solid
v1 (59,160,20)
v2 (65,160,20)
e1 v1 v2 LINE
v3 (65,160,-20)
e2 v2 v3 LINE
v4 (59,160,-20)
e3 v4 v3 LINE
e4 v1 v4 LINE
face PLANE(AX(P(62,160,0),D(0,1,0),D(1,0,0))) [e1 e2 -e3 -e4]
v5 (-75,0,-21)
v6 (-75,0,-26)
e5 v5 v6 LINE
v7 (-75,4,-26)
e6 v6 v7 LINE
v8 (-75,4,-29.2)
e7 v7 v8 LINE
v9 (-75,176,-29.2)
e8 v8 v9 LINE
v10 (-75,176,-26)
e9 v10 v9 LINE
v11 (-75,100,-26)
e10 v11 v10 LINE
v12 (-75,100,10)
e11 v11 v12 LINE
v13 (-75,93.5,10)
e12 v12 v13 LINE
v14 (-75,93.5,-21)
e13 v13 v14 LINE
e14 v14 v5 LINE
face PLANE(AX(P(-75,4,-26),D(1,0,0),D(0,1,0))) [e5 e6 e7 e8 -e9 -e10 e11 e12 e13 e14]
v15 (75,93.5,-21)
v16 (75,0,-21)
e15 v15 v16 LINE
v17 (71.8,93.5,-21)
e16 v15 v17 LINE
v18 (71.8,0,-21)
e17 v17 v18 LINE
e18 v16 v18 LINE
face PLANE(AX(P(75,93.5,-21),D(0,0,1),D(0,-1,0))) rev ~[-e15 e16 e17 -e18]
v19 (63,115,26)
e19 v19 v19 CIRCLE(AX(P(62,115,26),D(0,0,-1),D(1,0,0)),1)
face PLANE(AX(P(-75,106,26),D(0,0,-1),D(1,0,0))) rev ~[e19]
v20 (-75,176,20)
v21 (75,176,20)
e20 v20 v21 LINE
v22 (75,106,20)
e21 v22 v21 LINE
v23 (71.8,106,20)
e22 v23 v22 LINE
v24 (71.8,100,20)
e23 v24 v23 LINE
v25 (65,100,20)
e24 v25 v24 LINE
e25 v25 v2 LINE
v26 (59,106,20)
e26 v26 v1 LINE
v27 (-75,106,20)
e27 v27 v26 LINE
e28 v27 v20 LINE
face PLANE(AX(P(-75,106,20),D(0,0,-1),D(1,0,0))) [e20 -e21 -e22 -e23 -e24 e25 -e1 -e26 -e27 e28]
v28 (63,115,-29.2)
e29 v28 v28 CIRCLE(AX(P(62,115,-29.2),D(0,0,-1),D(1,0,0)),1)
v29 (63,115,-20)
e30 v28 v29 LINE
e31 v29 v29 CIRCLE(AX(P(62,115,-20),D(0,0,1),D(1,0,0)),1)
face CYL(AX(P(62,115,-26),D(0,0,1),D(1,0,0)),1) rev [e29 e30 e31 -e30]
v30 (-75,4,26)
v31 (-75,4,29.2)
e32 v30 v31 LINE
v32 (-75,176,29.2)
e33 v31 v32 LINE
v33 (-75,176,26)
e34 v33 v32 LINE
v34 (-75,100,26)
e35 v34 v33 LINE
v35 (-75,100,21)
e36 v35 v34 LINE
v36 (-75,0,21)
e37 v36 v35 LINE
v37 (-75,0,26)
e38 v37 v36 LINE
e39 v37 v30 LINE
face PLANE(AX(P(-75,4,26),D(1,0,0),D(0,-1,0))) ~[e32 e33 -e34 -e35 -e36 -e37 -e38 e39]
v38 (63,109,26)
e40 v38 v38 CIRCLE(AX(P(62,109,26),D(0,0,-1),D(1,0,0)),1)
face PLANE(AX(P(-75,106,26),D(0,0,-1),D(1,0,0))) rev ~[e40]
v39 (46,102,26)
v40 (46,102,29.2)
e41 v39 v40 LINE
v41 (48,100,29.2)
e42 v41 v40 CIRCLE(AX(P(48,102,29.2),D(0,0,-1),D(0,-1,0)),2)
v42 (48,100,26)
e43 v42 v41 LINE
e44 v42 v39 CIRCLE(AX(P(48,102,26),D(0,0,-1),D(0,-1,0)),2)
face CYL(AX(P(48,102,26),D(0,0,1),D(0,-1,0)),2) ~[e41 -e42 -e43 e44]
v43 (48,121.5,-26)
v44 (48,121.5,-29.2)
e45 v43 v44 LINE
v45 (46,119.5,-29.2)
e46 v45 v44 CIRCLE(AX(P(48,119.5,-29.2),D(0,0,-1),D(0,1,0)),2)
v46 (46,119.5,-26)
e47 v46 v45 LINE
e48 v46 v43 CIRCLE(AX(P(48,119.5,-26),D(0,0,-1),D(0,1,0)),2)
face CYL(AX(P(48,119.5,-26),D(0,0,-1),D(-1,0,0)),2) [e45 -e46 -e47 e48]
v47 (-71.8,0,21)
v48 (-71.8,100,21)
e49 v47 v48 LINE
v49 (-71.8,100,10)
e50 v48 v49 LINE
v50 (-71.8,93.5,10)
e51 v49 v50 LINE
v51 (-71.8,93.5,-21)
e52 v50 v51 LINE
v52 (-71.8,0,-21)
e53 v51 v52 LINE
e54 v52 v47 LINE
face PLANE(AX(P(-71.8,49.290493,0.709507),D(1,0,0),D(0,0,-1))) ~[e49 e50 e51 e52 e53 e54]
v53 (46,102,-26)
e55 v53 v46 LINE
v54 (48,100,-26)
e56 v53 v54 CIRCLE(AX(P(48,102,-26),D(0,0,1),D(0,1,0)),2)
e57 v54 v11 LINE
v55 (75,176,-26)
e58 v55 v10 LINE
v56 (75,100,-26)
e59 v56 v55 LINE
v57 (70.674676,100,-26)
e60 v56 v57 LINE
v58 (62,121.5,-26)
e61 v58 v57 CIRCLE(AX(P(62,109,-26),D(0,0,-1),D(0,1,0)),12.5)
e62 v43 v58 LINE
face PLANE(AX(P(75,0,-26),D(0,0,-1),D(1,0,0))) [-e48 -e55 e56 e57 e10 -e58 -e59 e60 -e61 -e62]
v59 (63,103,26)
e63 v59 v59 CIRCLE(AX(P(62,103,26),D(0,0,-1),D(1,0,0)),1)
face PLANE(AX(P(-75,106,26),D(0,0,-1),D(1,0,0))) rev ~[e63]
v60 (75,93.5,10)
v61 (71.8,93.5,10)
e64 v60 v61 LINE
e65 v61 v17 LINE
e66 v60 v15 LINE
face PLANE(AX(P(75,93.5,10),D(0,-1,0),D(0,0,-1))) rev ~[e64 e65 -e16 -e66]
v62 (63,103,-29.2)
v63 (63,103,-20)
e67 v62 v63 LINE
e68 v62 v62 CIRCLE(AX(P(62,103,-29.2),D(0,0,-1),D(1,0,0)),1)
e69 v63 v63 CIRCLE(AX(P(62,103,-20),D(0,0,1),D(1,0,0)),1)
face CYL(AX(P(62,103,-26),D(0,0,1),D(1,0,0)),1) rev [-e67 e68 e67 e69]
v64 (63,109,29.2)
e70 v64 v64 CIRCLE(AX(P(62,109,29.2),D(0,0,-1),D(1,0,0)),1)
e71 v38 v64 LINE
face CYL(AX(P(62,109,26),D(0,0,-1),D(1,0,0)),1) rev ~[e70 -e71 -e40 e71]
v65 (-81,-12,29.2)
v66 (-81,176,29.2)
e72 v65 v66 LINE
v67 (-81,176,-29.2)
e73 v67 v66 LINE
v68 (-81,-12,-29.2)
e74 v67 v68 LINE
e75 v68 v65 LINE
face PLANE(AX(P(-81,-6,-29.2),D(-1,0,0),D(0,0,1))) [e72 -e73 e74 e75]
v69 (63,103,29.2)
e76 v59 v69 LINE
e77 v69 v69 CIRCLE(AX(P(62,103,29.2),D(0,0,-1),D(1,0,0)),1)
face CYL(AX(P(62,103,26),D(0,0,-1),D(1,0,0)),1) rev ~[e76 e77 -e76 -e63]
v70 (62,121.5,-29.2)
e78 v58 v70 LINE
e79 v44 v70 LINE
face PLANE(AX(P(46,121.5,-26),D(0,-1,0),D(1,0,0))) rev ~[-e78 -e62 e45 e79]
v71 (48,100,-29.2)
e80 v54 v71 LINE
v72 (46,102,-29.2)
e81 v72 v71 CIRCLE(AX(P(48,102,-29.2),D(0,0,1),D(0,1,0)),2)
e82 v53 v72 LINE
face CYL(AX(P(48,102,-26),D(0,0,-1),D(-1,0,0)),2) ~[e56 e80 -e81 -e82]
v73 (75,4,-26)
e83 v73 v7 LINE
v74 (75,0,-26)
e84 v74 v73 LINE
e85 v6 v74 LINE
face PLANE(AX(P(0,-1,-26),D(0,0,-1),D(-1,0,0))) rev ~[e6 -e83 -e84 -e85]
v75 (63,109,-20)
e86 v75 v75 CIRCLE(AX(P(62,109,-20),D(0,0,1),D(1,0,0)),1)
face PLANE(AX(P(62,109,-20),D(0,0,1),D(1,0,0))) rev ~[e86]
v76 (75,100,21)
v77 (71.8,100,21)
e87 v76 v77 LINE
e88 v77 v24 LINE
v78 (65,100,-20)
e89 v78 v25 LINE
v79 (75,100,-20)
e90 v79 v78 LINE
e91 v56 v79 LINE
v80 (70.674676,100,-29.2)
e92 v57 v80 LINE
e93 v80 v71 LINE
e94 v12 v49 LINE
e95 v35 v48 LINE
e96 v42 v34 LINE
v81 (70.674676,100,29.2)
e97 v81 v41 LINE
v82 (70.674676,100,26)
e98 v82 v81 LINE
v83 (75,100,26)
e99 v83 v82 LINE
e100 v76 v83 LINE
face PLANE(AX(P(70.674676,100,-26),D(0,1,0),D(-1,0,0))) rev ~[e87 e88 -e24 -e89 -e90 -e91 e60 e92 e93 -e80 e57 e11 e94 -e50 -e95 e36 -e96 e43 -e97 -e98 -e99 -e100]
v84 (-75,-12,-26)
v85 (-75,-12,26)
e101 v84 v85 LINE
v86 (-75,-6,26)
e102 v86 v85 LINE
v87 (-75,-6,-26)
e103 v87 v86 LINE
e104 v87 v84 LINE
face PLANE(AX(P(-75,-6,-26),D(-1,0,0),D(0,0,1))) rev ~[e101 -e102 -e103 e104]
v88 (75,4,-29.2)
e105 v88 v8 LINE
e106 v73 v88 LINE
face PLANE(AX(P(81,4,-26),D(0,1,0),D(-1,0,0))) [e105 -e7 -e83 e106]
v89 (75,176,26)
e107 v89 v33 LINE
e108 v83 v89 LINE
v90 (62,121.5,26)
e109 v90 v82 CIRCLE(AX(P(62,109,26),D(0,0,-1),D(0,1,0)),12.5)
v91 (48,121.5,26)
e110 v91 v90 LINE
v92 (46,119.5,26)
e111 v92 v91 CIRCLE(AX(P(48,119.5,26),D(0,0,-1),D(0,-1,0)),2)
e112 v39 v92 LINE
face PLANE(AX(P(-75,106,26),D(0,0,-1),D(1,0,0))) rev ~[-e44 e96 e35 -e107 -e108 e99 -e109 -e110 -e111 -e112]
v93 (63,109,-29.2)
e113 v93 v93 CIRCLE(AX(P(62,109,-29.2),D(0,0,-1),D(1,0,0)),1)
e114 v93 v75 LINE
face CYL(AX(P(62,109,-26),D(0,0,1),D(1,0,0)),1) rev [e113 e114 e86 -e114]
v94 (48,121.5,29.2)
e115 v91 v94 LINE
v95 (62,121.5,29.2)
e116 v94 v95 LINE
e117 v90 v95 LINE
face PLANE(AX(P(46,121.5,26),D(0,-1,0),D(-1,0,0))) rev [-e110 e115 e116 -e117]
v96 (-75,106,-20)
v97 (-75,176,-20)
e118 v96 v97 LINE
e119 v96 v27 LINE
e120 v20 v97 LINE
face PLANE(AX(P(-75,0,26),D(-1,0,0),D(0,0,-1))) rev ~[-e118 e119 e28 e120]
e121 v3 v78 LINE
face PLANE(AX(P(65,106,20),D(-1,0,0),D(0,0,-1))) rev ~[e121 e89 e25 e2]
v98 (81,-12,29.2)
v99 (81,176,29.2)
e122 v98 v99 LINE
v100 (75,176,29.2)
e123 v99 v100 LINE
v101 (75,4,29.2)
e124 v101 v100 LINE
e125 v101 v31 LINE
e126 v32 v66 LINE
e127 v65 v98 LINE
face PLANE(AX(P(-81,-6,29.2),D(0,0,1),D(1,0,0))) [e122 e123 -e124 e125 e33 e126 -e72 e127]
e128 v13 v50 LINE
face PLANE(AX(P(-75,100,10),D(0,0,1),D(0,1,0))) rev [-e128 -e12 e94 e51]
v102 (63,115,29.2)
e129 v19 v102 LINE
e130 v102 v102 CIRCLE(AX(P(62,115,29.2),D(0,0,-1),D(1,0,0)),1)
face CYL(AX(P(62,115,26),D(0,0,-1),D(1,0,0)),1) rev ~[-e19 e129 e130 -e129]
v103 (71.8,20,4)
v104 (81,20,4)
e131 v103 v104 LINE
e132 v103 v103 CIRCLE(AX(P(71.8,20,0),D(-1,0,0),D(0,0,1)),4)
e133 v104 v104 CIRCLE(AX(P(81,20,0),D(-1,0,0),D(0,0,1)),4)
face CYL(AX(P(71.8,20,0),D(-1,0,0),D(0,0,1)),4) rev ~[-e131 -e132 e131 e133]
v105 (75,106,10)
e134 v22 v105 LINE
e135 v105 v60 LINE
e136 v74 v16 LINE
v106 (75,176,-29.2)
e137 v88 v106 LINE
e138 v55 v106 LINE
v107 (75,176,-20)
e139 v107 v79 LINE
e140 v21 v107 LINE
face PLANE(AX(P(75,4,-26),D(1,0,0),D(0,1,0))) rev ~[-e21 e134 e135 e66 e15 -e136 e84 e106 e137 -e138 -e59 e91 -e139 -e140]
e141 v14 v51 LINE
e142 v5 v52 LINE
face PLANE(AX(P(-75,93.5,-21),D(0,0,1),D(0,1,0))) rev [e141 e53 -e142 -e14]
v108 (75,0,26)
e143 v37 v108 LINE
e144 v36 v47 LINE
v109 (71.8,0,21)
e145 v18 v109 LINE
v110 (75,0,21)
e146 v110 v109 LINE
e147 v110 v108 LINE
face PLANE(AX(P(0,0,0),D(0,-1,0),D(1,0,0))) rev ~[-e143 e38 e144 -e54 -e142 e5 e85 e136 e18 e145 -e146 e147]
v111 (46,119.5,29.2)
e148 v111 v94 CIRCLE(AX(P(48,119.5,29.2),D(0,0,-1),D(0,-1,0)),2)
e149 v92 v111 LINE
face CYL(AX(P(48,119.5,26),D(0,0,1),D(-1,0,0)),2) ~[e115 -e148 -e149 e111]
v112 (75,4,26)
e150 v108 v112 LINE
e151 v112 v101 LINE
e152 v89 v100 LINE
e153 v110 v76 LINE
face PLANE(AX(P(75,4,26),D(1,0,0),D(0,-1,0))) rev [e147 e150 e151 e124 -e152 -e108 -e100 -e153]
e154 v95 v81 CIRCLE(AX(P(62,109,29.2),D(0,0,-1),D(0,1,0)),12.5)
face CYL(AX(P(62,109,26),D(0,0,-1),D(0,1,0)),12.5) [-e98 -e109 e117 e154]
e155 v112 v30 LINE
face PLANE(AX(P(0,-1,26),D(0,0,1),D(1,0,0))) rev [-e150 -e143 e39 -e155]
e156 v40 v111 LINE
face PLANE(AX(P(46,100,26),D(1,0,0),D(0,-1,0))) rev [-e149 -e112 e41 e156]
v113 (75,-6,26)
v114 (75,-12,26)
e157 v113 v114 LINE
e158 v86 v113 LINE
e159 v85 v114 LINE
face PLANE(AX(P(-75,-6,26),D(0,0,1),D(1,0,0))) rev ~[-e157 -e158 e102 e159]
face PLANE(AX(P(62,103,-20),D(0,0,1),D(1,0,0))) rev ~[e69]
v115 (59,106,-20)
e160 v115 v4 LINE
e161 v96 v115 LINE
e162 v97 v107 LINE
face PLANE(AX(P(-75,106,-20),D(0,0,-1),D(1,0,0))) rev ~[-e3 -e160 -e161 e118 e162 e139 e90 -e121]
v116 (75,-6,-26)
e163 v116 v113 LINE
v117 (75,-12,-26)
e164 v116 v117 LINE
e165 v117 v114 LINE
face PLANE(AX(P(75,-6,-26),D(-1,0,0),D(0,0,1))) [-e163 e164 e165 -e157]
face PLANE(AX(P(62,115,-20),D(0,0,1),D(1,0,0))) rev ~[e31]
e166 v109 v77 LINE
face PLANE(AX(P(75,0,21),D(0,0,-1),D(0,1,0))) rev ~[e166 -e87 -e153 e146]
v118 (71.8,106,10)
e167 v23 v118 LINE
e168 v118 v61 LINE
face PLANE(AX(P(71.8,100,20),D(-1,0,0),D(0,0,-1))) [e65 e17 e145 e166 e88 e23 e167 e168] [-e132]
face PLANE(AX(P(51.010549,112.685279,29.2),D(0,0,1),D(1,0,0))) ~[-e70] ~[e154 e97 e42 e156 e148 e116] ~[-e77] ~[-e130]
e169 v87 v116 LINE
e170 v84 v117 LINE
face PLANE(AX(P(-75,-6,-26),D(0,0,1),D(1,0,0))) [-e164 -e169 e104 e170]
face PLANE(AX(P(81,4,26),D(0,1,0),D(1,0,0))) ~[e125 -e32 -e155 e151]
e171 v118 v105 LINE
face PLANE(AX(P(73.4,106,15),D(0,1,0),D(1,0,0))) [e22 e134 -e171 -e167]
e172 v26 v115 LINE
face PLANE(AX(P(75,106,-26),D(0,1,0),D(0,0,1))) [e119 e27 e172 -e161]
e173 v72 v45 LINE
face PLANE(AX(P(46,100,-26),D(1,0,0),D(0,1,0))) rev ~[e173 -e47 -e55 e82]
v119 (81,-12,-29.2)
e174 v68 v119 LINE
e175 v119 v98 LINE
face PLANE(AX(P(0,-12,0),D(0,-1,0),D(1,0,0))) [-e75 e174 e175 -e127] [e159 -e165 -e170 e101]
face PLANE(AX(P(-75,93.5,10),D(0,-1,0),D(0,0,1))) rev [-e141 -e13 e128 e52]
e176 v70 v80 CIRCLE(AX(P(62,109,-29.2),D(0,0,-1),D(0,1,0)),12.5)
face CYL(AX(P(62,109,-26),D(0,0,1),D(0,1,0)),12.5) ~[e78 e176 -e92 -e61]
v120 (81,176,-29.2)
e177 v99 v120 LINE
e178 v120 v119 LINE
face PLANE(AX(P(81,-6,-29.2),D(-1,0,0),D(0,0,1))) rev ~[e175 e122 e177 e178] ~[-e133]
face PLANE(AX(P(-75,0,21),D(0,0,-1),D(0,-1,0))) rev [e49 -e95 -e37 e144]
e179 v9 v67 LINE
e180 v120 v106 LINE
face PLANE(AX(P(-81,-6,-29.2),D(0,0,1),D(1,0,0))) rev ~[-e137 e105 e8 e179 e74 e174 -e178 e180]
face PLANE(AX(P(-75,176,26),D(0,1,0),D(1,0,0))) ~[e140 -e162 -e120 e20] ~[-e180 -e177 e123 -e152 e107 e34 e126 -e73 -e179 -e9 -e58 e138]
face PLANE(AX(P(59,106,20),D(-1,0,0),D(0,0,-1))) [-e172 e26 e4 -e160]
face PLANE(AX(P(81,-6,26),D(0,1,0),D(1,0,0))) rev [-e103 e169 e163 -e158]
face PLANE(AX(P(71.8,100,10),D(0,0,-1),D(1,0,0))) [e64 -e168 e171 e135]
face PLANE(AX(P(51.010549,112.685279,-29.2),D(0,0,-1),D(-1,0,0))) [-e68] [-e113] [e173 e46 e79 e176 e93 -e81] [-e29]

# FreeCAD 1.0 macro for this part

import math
import FreeCAD as App
import Part
import Sketcher


def edges_at(feature, points):
    """Names of the edges that pass closest to the given points."""
    edges = feature.Shape.Edges
    near = lambda p: min(range(len(edges)), key=lambda i: edges[i].distToShape(Part.Vertex(*p))[0])
    return sorted({f"Edge{near(p) + 1}" for p in points})


def add_polygon(sketch, points):
    """Adds a closed chain of lines whose ends are joined by coincident constraints."""
    first, n = sketch.GeometryCount, len(points)
    for a, b in zip(points, points[1:] + points[:1]):
        sketch.addGeometry(Part.LineSegment(App.Vector(*a, 0), App.Vector(*b, 0)), False)
    for i in range(n):
        sketch.addConstraint(Sketcher.Constraint("Coincident", first + i, 2, first + (i + 1) % n, 1))

doc = App.newDocument("Part")
params = doc.addObject("Spreadsheet::Sheet", "Params")
for row, (alias, value) in enumerate([
    ("sketch1_width", "150 mm"),
    ("sketch1_height", "42 mm"),
    ("pad1_length", "3.2 mm"),
    ("sketch2_width", "162 mm"),
    ("sketch2_height", "52 mm"),
    ("pad2_length", "6 mm"),
    ("sketch3_width", "6 mm"),
    ("sketch3_height", "52 mm"),
    ("pad3_length", "176 mm"),
    ("sketch4_width", "6 mm"),
    ("sketch4_height", "52 mm"),
    ("sketch5_width", "150 mm"),
    ("sketch5_height", "42 mm"),
    ("pad5_length", "3.2 mm"),
    ("sketch6_width", "150 mm"),
    ("sketch6_height", "6 mm"),
    ("pad6_length", "70 mm"),
    ("sketch7_diameter", "6 mm"),
    ("sketch7_width", "10 mm"),
    ("sketch7_height", "40 mm"),
    ("sketch8_diameter", "6 mm"),
    ("sketch9_diameter", "6 mm"),
    ("sketch10_width", "6 mm"),
    ("sketch10_height", "40 mm"),
    ("pad7_length", "54 mm"),
    ("sketch11_width", "162 mm"),
    ("sketch11_height", "10 mm"),
    ("pad8_length", "3.2 mm"),
    ("sketch12_width", "150 mm"),
    ("sketch12_height", "42 mm"),
    ("pocket4_length", "3.2 mm"),
    ("sketch13_width", "150 mm"),
    ("sketch13_width2", "10 mm"),
    ("sketch13_height", "1 mm"),
    ("sketch13_height2", "40 mm"),
    ("pocket5_length", "3.2 mm"),
    ("sketch14_width", "100 mm"),
    ("sketch14_height", "31 mm"),
    ("sketch14_height2", "42 mm"),
    ("sketch14_width2", "93.5 mm"),
    ("pad9_length", "3.2 mm"),
    ("sketch15_height", "10 mm"),
    ("sketch15_width", "3.2 mm"),
    ("pad10_length", "6 mm"),
    ("sketch16_diameter", "8 mm"),
    ("sketch17_diameter", "2 mm"),
    ("sketch18_diameter", "2 mm"),
    ("sketch19_diameter", "2 mm"),
    ("sketch20_width", "6 mm"),
    ("sketch20_height", "172 mm"),
    ("pad11_length", "3.2 mm"),
    ("sketch21_width", "162 mm"),
    ("sketch21_width2", "150 mm"),
    ("sketch21_height", "52 mm"),
    ("sketch21_height2", "58.4 mm"),
    ("pad12_length", "6 mm"),
    ("sketch22_diameter", "2 mm"),
    ("sketch22_radius", "12.5 mm"),
    ("sketch22_width", "16 mm"),
    ("sketch22_height", "21.5 mm"),
    ("pad13_length", "3.2 mm"),
    ("fillet_radius", "2 mm"),
    ("fillet2_radius", "2 mm"),
], start=1):
    params.set(f"A{row}", alias)
    params.set(f"B{row}", "=" + value)
    params.setAlias(f"B{row}", alias)

body = doc.addObject("PartDesign::Body", "Body")
body.AllowCompound = True

# Sketch on XZ plane
sketch1 = body.newObject("Sketcher::SketchObject", "Sketch")
sketch1.AttachmentSupport = (doc.getObject("XZ_Plane"), [""])
sketch1.MapMode = "FlatFace"
add_polygon(sketch1, [(-75, -21), (-75, 21), (75, 21), (75, -21)])  # lines 0-3
sketch1.addConstraint([
    Sketcher.Constraint("Vertical", 0),
    Sketcher.Constraint("Horizontal", 1),
    Sketcher.Constraint("Vertical", 2),
    Sketcher.Constraint("Horizontal", 3),
    Sketcher.Constraint("Symmetric", 0, 2, 2, 2, -1, 1),
    Sketcher.Constraint("DistanceX", 1, 1, 1, 2, 150.0),
    Sketcher.Constraint("DistanceY", 0, 1, 0, 2, 42.0),
])
sketch1.setExpression("Constraints[9]", "Params.sketch1_width")
sketch1.setExpression("Constraints[10]", "Params.sketch1_height")
pad1 = body.newObject("PartDesign::Pad", "Pad")
pad1.Profile = sketch1
pad1.setExpression("Length", "Params.pad1_length")
pad1.Reversed = True

# Sketch on XZ plane
sketch2 = body.newObject("Sketcher::SketchObject", "Sketch001")
sketch2.AttachmentSupport = (doc.getObject("XZ_Plane"), [""])
sketch2.MapMode = "FlatFace"
add_polygon(sketch2, [(-81, 26), (-81, -26), (81, -26), (81, 26)])  # lines 0-3
sketch2.addConstraint([
    Sketcher.Constraint("Vertical", 0),
    Sketcher.Constraint("Horizontal", 1),
    Sketcher.Constraint("Vertical", 2),
    Sketcher.Constraint("Horizontal", 3),
    Sketcher.Constraint("Symmetric", 0, 2, 2, 2, -1, 1),
    Sketcher.Constraint("DistanceX", 1, 1, 1, 2, 162.0),
    Sketcher.Constraint("DistanceY", 0, 2, 0, 1, 52.0),
])
sketch2.setExpression("Constraints[9]", "Params.sketch2_width")
sketch2.setExpression("Constraints[10]", "Params.sketch2_height")
pad2 = body.newObject("PartDesign::Pad", "Pad001")
pad2.Profile = sketch2
pad2.setExpression("Length", "Params.pad2_length")

# Sketch on XZ plane
sketch3 = body.newObject("Sketcher::SketchObject", "Sketch002")
sketch3.AttachmentSupport = (doc.getObject("XZ_Plane"), [""])
sketch3.MapMode = "FlatFace"
add_polygon(sketch3, [(75, -26), (75, 26), (81, 26), (81, -26)])  # lines 0-3
add_polygon(sketch3, [(-81, -26), (-81, 26), (-75, 26), (-75, -26)])  # lines 4-7
sketch3.addConstraint([
    Sketcher.Constraint("Vertical", 0),
    Sketcher.Constraint("Horizontal", 1),
    Sketcher.Constraint("Vertical", 2),
    Sketcher.Constraint("Horizontal", 3),
    Sketcher.Constraint("Vertical", 4),
    Sketcher.Constraint("Horizontal", 5),
    Sketcher.Constraint("Vertical", 6),
    Sketcher.Constraint("Horizontal", 7),
    Sketcher.Constraint("Symmetric", 2, 2, 4, 2, -1, 1),
    Sketcher.Constraint("Symmetric", 0, 2, 6, 2, -1, 1),
    Sketcher.Constraint("Horizontal", 1, 2, 4, 2),
    Sketcher.Constraint("DistanceX", 1, 1, 1, 2, 6.0),
    Sketcher.Constraint("DistanceY", 0, 1, 0, 2, 52.0),
    Sketcher.Constraint("DistanceX", -1, 1, 0, 2, 75.0),
])
sketch3.setExpression("Constraints[19]", "Params.sketch3_width")
sketch3.setExpression("Constraints[20]", "Params.sketch3_height")
pad3 = body.newObject("PartDesign::Pad", "Pad002")
pad3.Profile = sketch3
pad3.setExpression("Length", "Params.pad3_length")
pad3.Reversed = True

# Sketch on YZ plane
sketch4 = body.newObject("Sketcher::SketchObject", "Sketch003")
sketch4.AttachmentSupport = (doc.getObject("YZ_Plane"), [""])
sketch4.MapMode = "FlatFace"
sketch4.AttachmentOffset = App.Placement(App.Vector(0, 0, 75), App.Rotation())
add_polygon(sketch4, [(106, -26), (100, -26), (100, 26), (106, 26)])  # lines 0-3
sketch4.addConstraint([
    Sketcher.Constraint("Horizontal", 0),
    Sketcher.Constraint("Vertical", 1),
    Sketcher.Constraint("Horizontal", 2),
    Sketcher.Constraint("Vertical", 3),
    Sketcher.Constraint("DistanceX", 0, 2, 0, 1, 6.0),
    Sketcher.Constraint("DistanceY", 1, 1, 1, 2, 52.0),
    Sketcher.Constraint("DistanceX", -1, 1, 0, 2, 100.0),
    Sketcher.Constraint("DistanceY", 0, 2, -1, 1, 26.0),
])
sketch4.setExpression("Constraints[8]", "Params.sketch4_width")
sketch4.setExpression("Constraints[9]", "Params.sketch4_height")
pad4 = body.newObject("PartDesign::Pad", "Pad003")
pad4.Profile = sketch4
pad4.Type = "UpToFirst"
pad4.Reversed = True

# Sketch on XZ plane
sketch5 = body.newObject("Sketcher::SketchObject", "Sketch004")
sketch5.AttachmentSupport = (doc.getObject("XZ_Plane"), [""])
sketch5.MapMode = "FlatFace"
sketch5.AttachmentOffset = App.Placement(App.Vector(0, 0, -100), App.Rotation())
add_polygon(sketch5, [(-75, -21), (-75, 21), (75, 21), (75, -21)])  # lines 0-3
sketch5.addConstraint([
    Sketcher.Constraint("Vertical", 0),
    Sketcher.Constraint("Horizontal", 1),
    Sketcher.Constraint("Vertical", 2),
    Sketcher.Constraint("Horizontal", 3),
    Sketcher.Constraint("Symmetric", 0, 2, 2, 2, -1, 1),
    Sketcher.Constraint("DistanceX", 1, 1, 1, 2, 150.0),
    Sketcher.Constraint("DistanceY", 0, 1, 0, 2, 42.0),
])
sketch5.setExpression("Constraints[9]", "Params.sketch5_width")
sketch5.setExpression("Constraints[10]", "Params.sketch5_height")
pad5 = body.newObject("PartDesign::Pad", "Pad004")
pad5.Profile = sketch5
pad5.setExpression("Length", "Params.pad5_length")

# Sketch on XZ plane
sketch6 = body.newObject("Sketcher::SketchObject", "Sketch005")
sketch6.AttachmentSupport = (doc.getObject("XZ_Plane"), [""])
sketch6.MapMode = "FlatFace"
sketch6.AttachmentOffset = App.Placement(App.Vector(0, 0, -106), App.Rotation())
add_polygon(sketch6, [(-75, 20), (-75, 26), (75, 26), (75, 20)])  # lines 0-3
add_polygon(sketch6, [(-75, -26), (-75, -20), (75, -20), (75, -26)])  # lines 4-7
sketch6.addConstraint([
    Sketcher.Constraint("Vertical", 0),
    Sketcher.Constraint("Horizontal", 1),
    Sketcher.Constraint("Vertical", 2),
    Sketcher.Constraint("Horizontal", 3),
    Sketcher.Constraint("Vertical", 4),
    Sketcher.Constraint("Horizontal", 5),
    Sketcher.Constraint("Vertical", 6),
    Sketcher.Constraint("Horizontal", 7),
    Sketcher.Constraint("Symmetric", 2, 2, 4, 2, -1, 1),
    Sketcher.Constraint("Symmetric", 0, 2, 6, 2, -1, 1),
    Sketcher.Constraint("Vertical", 3, 2, 4, 2),
    Sketcher.Constraint("DistanceX", 1, 1, 1, 2, 150.0),
    Sketcher.Constraint("DistanceY", 0, 1, 0, 2, 6.0),
    Sketcher.Constraint("DistanceY", -1, 1, 0, 2, 26.0),
])
sketch6.setExpression("Constraints[19]", "Params.sketch6_width")
sketch6.setExpression("Constraints[20]", "Params.sketch6_height")
pad6 = body.newObject("PartDesign::Pad", "Pad005")
pad6.Profile = sketch6
pad6.setExpression("Length", "Params.pad6_length")
pad6.Reversed = True

# Sketch on XZ plane
sketch7 = body.newObject("Sketcher::SketchObject", "Sketch006")
sketch7.AttachmentSupport = (doc.getObject("XZ_Plane"), [""])
sketch7.MapMode = "FlatFace"
sketch7.AttachmentOffset = App.Placement(App.Vector(0, 0, -106), App.Rotation())
add_polygon(sketch7, [(65, -20), (65, 20), (75, 20), (75, -20)])  # lines 0-3
sketch7.addGeometry(Part.Circle(App.Vector(70, 15, 0), App.Vector(0, 0, 1), 3), False)  # 4
sketch7.addGeometry(Part.Circle(App.Vector(70, -15, 0), App.Vector(0, 0, 1), 3), False)  # 5
sketch7.addConstraint([
    Sketcher.Constraint("Vertical", 0),
    Sketcher.Constraint("Horizontal", 1),
    Sketcher.Constraint("Vertical", 2),
    Sketcher.Constraint("Horizontal", 3),
    Sketcher.Constraint("Equal", 4, 5),
    Sketcher.Constraint("Symmetric", 4, 3, 5, 3, -1),
    Sketcher.Constraint("Diameter", 4, 6.0),
    Sketcher.Constraint("DistanceX", 1, 1, 1, 2, 10.0),
    Sketcher.Constraint("DistanceY", 0, 1, 0, 2, 40.0),
    Sketcher.Constraint("DistanceX", -1, 1, 4, 3, 70.0),
    Sketcher.Constraint("DistanceY", -1, 1, 4, 3, 15.0),
    Sketcher.Constraint("DistanceX", -1, 1, 0, 2, 65.0),
    Sketcher.Constraint("DistanceY", -1, 1, 0, 2, 20.0),
])
sketch7.setExpression("Constraints[10]", "Params.sketch7_diameter")
sketch7.setExpression("Constraints[11]", "Params.sketch7_width")
sketch7.setExpression("Constraints[12]", "Params.sketch7_height")
pocket1 = body.newObject("PartDesign::Pocket", "Pocket")
pocket1.Profile = sketch7
pocket1.Type = "UpToFirst"
pocket1.Reversed = True

# Sketch on XZ plane
sketch8 = body.newObject("Sketcher::SketchObject", "Sketch007")
sketch8.AttachmentSupport = (doc.getObject("XZ_Plane"), [""])
sketch8.MapMode = "FlatFace"
sketch8.AttachmentOffset = App.Placement(App.Vector(0, 0, -106), App.Rotation())
sketch8.addGeometry(Part.Circle(App.Vector(70, 15, 0), App.Vector(0, 0, 1), 3), False)
sketch8.addConstraint([
    Sketcher.Constraint("Diameter", 0, 6.0),
    Sketcher.Constraint("DistanceX", -1, 1, 0, 3, 70.0),
    Sketcher.Constraint("DistanceY", -1, 1, 0, 3, 15.0),
])
sketch8.setExpression("Constraints[0]", "Params.sketch8_diameter")
pocket2 = body.newObject("PartDesign::Pocket", "Pocket001")
pocket2.Profile = sketch8
pocket2.Type = "UpToFirst"
pocket2.Reversed = True

# Sketch on XZ plane
sketch9 = body.newObject("Sketcher::SketchObject", "Sketch008")
sketch9.AttachmentSupport = (doc.getObject("XZ_Plane"), [""])
sketch9.MapMode = "FlatFace"
sketch9.AttachmentOffset = App.Placement(App.Vector(0, 0, -106), App.Rotation())
sketch9.addGeometry(Part.Circle(App.Vector(70, -15, 0), App.Vector(0, 0, 1), 3), False)
sketch9.addConstraint([
    Sketcher.Constraint("Diameter", 0, 6.0),
    Sketcher.Constraint("DistanceX", -1, 1, 0, 3, 70.0),
    Sketcher.Constraint("DistanceY", 0, 3, -1, 1, 15.0),
])
sketch9.setExpression("Constraints[0]", "Params.sketch9_diameter")
pocket3 = body.newObject("PartDesign::Pocket", "Pocket002")
pocket3.Profile = sketch9
pocket3.Type = "UpToFirst"
pocket3.Reversed = True

# Sketch on XZ plane
sketch10 = body.newObject("Sketcher::SketchObject", "Sketch009")
sketch10.AttachmentSupport = (doc.getObject("XZ_Plane"), [""])
sketch10.MapMode = "FlatFace"
sketch10.AttachmentOffset = App.Placement(App.Vector(0, 0, -106), App.Rotation())
add_polygon(sketch10, [(59, -20), (59, 20), (65, 20), (65, -20)])  # lines 0-3
sketch10.addConstraint([
    Sketcher.Constraint("Vertical", 0),
    Sketcher.Constraint("Horizontal", 1),
    Sketcher.Constraint("Vertical", 2),
    Sketcher.Constraint("Horizontal", 3),
    Sketcher.Constraint("DistanceX", 1, 1, 1, 2, 6.0),
    Sketcher.Constraint("DistanceY", 0, 1, 0, 2, 40.0),
    Sketcher.Constraint("DistanceX", -1, 1, 0, 2, 59.0),
    Sketcher.Constraint("DistanceY", -1, 1, 0, 2, 20.0),
])
sketch10.setExpression("Constraints[8]", "Params.sketch10_width")
sketch10.setExpression("Constraints[9]", "Params.sketch10_height")
pad7 = body.newObject("PartDesign::Pad", "Pad006")
pad7.Profile = sketch10
pad7.setExpression("Length", "Params.pad7_length")
pad7.Reversed = True

# Sketch on XY plane
sketch11 = body.newObject("Sketcher::SketchObject", "Sketch010")
sketch11.AttachmentSupport = (doc.getObject("XY_Plane"), [""])
sketch11.MapMode = "FlatFace"
sketch11.AttachmentOffset = App.Placement(App.Vector(0, 0, -26), App.Rotation())
add_polygon(sketch11, [(81, 4), (81, -6), (-81, -6), (-81, 4)])  # lines 0-3
sketch11.addConstraint([
    Sketcher.Constraint("Vertical", 0),
    Sketcher.Constraint("Horizontal", 1),
    Sketcher.Constraint("Vertical", 2),
    Sketcher.Constraint("Horizontal", 3),
    Sketcher.Constraint("DistanceX", 1, 2, 1, 1, 162.0),
    Sketcher.Constraint("DistanceY", 0, 2, 0, 1, 10.0),
    Sketcher.Constraint("DistanceX", -1, 1, 0, 2, 81.0),
    Sketcher.Constraint("DistanceY", 0, 2, -1, 1, 6.0),
])
sketch11.setExpression("Constraints[8]", "Params.sketch11_width")
sketch11.setExpression("Constraints[9]", "Params.sketch11_height")
pad8 = body.newObject("PartDesign::Pad", "Pad007")
pad8.Profile = sketch11
pad8.setExpression("Length", "Params.pad8_length")
pad8.Reversed = True
doc.recompute()

mirrored = body.newObject("PartDesign::Mirrored", "Mirrored")
mirrored.Originals = [pad8]
mirrored.MirrorPlane = (doc.getObject("XY_Plane"), [""])
body.Tip = mirrored

# Sketch on XZ plane
sketch12 = body.newObject("Sketcher::SketchObject", "Sketch011")
sketch12.AttachmentSupport = (doc.getObject("XZ_Plane"), [""])
sketch12.MapMode = "FlatFace"
sketch12.AttachmentOffset = App.Placement(App.Vector(0, 0, -3.2), App.Rotation())
add_polygon(sketch12, [(-75, -21), (-75, 21), (75, 21), (75, -21)])  # lines 0-3
sketch12.addConstraint([
    Sketcher.Constraint("Vertical", 0),
    Sketcher.Constraint("Horizontal", 1),
    Sketcher.Constraint("Vertical", 2),
    Sketcher.Constraint("Horizontal", 3),
    Sketcher.Constraint("Symmetric", 0, 2, 2, 2, -1, 1),
    Sketcher.Constraint("DistanceX", 1, 1, 1, 2, 150.0),
    Sketcher.Constraint("DistanceY", 0, 1, 0, 2, 42.0),
])
sketch12.setExpression("Constraints[9]", "Params.sketch12_width")
sketch12.setExpression("Constraints[10]", "Params.sketch12_height")
pocket4 = body.newObject("PartDesign::Pocket", "Pocket003")
pocket4.Profile = sketch12
pocket4.setExpression("Length", "Params.pocket4_length")
pocket4.Reversed = True

# Sketch on XZ plane
sketch13 = body.newObject("Sketcher::SketchObject", "Sketch012")
sketch13.AttachmentSupport = (doc.getObject("XZ_Plane"), [""])
sketch13.MapMode = "FlatFace"
sketch13.AttachmentOffset = App.Placement(App.Vector(0, 0, -96.8), App.Rotation())
add_polygon(sketch13, [(-75, -21), (75, -21), (75, -20), (65, -20), (65, 20), (75, 20), (75, 21), (-75, 21)])  # lines 0-7
sketch13.addConstraint([
    Sketcher.Constraint("Horizontal", 0),
    Sketcher.Constraint("Vertical", 1),
    Sketcher.Constraint("Horizontal", 2),
    Sketcher.Constraint("Vertical", 3),
    Sketcher.Constraint("Horizontal", 4),
    Sketcher.Constraint("Vertical", 5),
    Sketcher.Constraint("Horizontal", 6),
    Sketcher.Constraint("Vertical", 7),
    Sketcher.Constraint("Symmetric", 0, 2, 6, 2, -1, 1),
    Sketcher.Constraint("Symmetric", 1, 2, 4, 2, -1),
    Sketcher.Constraint("DistanceX", 0, 1, 0, 2, 150.0),
    Sketcher.Constraint("DistanceX", 2, 2, 2, 1, 10.0),
    Sketcher.Constraint("DistanceY", 1, 1, 1, 2, 1.0),
    Sketcher.Constraint("DistanceY", 3, 1, 3, 2, 40.0),
])
sketch13.setExpression("Constraints[18]", "Params.sketch13_width")
sketch13.setExpression("Constraints[19]", "Params.sketch13_width2")
sketch13.setExpression("Constraints[20]", "Params.sketch13_height")
sketch13.setExpression("Constraints[21]", "Params.sketch13_height2")
pocket5 = body.newObject("PartDesign::Pocket", "Pocket004")
pocket5.Profile = sketch13
pocket5.setExpression("Length", "Params.pocket5_length")

# Sketch on YZ plane
sketch14 = body.newObject("Sketcher::SketchObject", "Sketch013")
sketch14.AttachmentSupport = (doc.getObject("YZ_Plane"), [""])
sketch14.MapMode = "FlatFace"
sketch14.AttachmentOffset = App.Placement(App.Vector(0, 0, 75), App.Rotation())
add_polygon(sketch14, [(94, 10), (94, -21), (0, -21), (0, 21), (100, 21), (100, 10)])  # lines 0-5
sketch14.addConstraint([
    Sketcher.Constraint("Vertical", 0),
    Sketcher.Constraint("Horizontal", 1),
    Sketcher.Constraint("Vertical", 2),
    Sketcher.Constraint("Horizontal", 3),
    Sketcher.Constraint("Vertical", 4),
    Sketcher.Constraint("Horizontal", 5),
    Sketcher.Constraint("Symmetric", 1, 2, 2, 2, -1, 1),
    Sketcher.Constraint("DistanceX", 3, 1, 3, 2, 100.0),
    Sketcher.Constraint("DistanceY", 0, 2, 0, 1, 31.0),
    Sketcher.Constraint("DistanceY", 2, 1, 2, 2, 42.0),
    Sketcher.Constraint("DistanceX", 1, 2, 1, 1, 93.5),
])
sketch14.setExpression("Constraints[13]", "Params.sketch14_width")
sketch14.setExpression("Constraints[14]", "Params.sketch14_height")
sketch14.setExpression("Constraints[15]", "Params.sketch14_height2")
sketch14.setExpression("Constraints[16]", "Params.sketch14_width2")
pad9 = body.newObject("PartDesign::Pad", "Pad008")
pad9.Profile = sketch14
pad9.setExpression("Length", "Params.pad9_length")
pad9.Reversed = True
doc.recompute()

mirrored2 = body.newObject("PartDesign::Mirrored", "Mirrored001")
mirrored2.Originals = [pad9]
mirrored2.MirrorPlane = (doc.getObject("YZ_Plane"), [""])
body.Tip = mirrored2

# Sketch on XZ plane
sketch15 = body.newObject("Sketcher::SketchObject", "Sketch014")
sketch15.AttachmentSupport = (doc.getObject("XZ_Plane"), [""])
sketch15.MapMode = "FlatFace"
sketch15.AttachmentOffset = App.Placement(App.Vector(0, 0, -100), App.Rotation())
add_polygon(sketch15, [(71.8, 10), (71.8, 20), (75, 20), (75, 10)])  # lines 0-3
sketch15.addConstraint([
    Sketcher.Constraint("Vertical", 0),
    Sketcher.Constraint("Horizontal", 1),
    Sketcher.Constraint("Vertical", 2),
    Sketcher.Constraint("Horizontal", 3),
    Sketcher.Constraint("DistanceY", 0, 1, 0, 2, 10.0),
    Sketcher.Constraint("DistanceX", 1, 1, 1, 2, 3.2),
    Sketcher.Constraint("DistanceY", -1, 1, 0, 2, 20.0),
    Sketcher.Constraint("DistanceX", -1, 1, 1, 2, 75.0),
])
sketch15.setExpression("Constraints[8]", "Params.sketch15_height")
sketch15.setExpression("Constraints[9]", "Params.sketch15_width")
pad10 = body.newObject("PartDesign::Pad", "Pad009")
pad10.Profile = sketch15
pad10.setExpression("Length", "Params.pad10_length")
pad10.Reversed = True

# Sketch on YZ plane
sketch16 = body.newObject("Sketcher::SketchObject", "Sketch015")
sketch16.AttachmentSupport = (doc.getObject("YZ_Plane"), [""])
sketch16.MapMode = "FlatFace"
sketch16.AttachmentOffset = App.Placement(App.Vector(0, 0, 71.8), App.Rotation())
sketch16.addGeometry(Part.Circle(App.Vector(20, 0, 0), App.Vector(0, 0, 1), 4), False)
sketch16.addConstraint([
    Sketcher.Constraint("PointOnObject", 0, 3, -1),
    Sketcher.Constraint("Diameter", 0, 8.0),
    Sketcher.Constraint("DistanceX", -1, 1, 0, 3, 20.0),
])
sketch16.setExpression("Constraints[1]", "Params.sketch16_diameter")
pocket6 = body.newObject("PartDesign::Pocket", "Pocket005")
pocket6.Profile = sketch16
pocket6.Type = "UpToFirst"
pocket6.Reversed = True

# Sketch on XY plane
sketch17 = body.newObject("Sketcher::SketchObject", "Sketch016")
sketch17.AttachmentSupport = (doc.getObject("XY_Plane"), [""])
sketch17.MapMode = "FlatFace"
sketch17.AttachmentOffset = App.Placement(App.Vector(0, 0, -20), App.Rotation())
sketch17.addGeometry(Part.Circle(App.Vector(62, 103, 0), App.Vector(0, 0, 1), 1), False)
sketch17.addConstraint([
    Sketcher.Constraint("Diameter", 0, 2.0),
    Sketcher.Constraint("DistanceX", -1, 1, 0, 3, 62.0),
    Sketcher.Constraint("DistanceY", -1, 1, 0, 3, 103.0),
])
sketch17.setExpression("Constraints[0]", "Params.sketch17_diameter")
pocket7 = body.newObject("PartDesign::Pocket", "Pocket006")
pocket7.Profile = sketch17
pocket7.Type = "UpToFirst"

# Sketch on XY plane
sketch18 = body.newObject("Sketcher::SketchObject", "Sketch017")
sketch18.AttachmentSupport = (doc.getObject("XY_Plane"), [""])
sketch18.MapMode = "FlatFace"
sketch18.AttachmentOffset = App.Placement(App.Vector(0, 0, -20), App.Rotation())
sketch18.addGeometry(Part.Circle(App.Vector(62, 109, 0), App.Vector(0, 0, 1), 1), False)
sketch18.addConstraint([
    Sketcher.Constraint("Diameter", 0, 2.0),
    Sketcher.Constraint("DistanceX", -1, 1, 0, 3, 62.0),
    Sketcher.Constraint("DistanceY", -1, 1, 0, 3, 109.0),
])
sketch18.setExpression("Constraints[0]", "Params.sketch18_diameter")
pocket8 = body.newObject("PartDesign::Pocket", "Pocket007")
pocket8.Profile = sketch18
pocket8.Type = "UpToFirst"

# Sketch on XY plane
sketch19 = body.newObject("Sketcher::SketchObject", "Sketch018")
sketch19.AttachmentSupport = (doc.getObject("XY_Plane"), [""])
sketch19.MapMode = "FlatFace"
sketch19.AttachmentOffset = App.Placement(App.Vector(0, 0, -20), App.Rotation())
sketch19.addGeometry(Part.Circle(App.Vector(62, 115, 0), App.Vector(0, 0, 1), 1), False)
sketch19.addConstraint([
    Sketcher.Constraint("Diameter", 0, 2.0),
    Sketcher.Constraint("DistanceX", -1, 1, 0, 3, 62.0),
    Sketcher.Constraint("DistanceY", -1, 1, 0, 3, 115.0),
])
sketch19.setExpression("Constraints[0]", "Params.sketch19_diameter")
pocket9 = body.newObject("PartDesign::Pocket", "Pocket008")
pocket9.Profile = sketch19
pocket9.Type = "UpToFirst"

# Sketch on XY plane
sketch20 = body.newObject("Sketcher::SketchObject", "Sketch019")
sketch20.AttachmentSupport = (doc.getObject("XY_Plane"), [""])
sketch20.MapMode = "FlatFace"
sketch20.AttachmentOffset = App.Placement(App.Vector(0, 0, -26), App.Rotation())
add_polygon(sketch20, [(-75, 176), (-75, 4), (-81, 4), (-81, 176)])  # lines 0-3
add_polygon(sketch20, [(81, 176), (81, 4), (75, 4), (75, 176)])  # lines 4-7
sketch20.addConstraint([
    Sketcher.Constraint("Vertical", 0),
    Sketcher.Constraint("Horizontal", 1),
    Sketcher.Constraint("Vertical", 2),
    Sketcher.Constraint("Horizontal", 3),
    Sketcher.Constraint("Vertical", 4),
    Sketcher.Constraint("Horizontal", 5),
    Sketcher.Constraint("Vertical", 6),
    Sketcher.Constraint("Horizontal", 7),
    Sketcher.Constraint("Symmetric", 1, 2, 4, 2, -2),
    Sketcher.Constraint("Symmetric", 3, 2, 6, 2, -2),
    Sketcher.Constraint("DistanceX", 1, 2, 1, 1, 6.0),
    Sketcher.Constraint("DistanceY", 0, 2, 0, 1, 172.0),
    Sketcher.Constraint("DistanceX", 0, 2, -1, 1, 75.0),
    Sketcher.Constraint("DistanceY", -1, 1, 0, 2, 4.0),
])
sketch20.setExpression("Constraints[18]", "Params.sketch20_width")
sketch20.setExpression("Constraints[19]", "Params.sketch20_height")
pad11 = body.newObject("PartDesign::Pad", "Pad010")
pad11.Profile = sketch20
pad11.setExpression("Length", "Params.pad11_length")
pad11.Reversed = True
doc.recompute()

mirrored3 = body.newObject("PartDesign::Mirrored", "Mirrored002")
mirrored3.Originals = [pad11]
mirrored3.MirrorPlane = (doc.getObject("XY_Plane"), [""])
body.Tip = mirrored3

# Sketch on XZ plane
sketch21 = body.newObject("Sketcher::SketchObject", "Sketch020")
sketch21.AttachmentSupport = (doc.getObject("XZ_Plane"), [""])
sketch21.MapMode = "FlatFace"
sketch21.AttachmentOffset = App.Placement(App.Vector(0, 0, 6), App.Rotation())
add_polygon(sketch21, [(-81, 29), (-81, -29), (81, -29), (81, 29)])  # lines 0-3
add_polygon(sketch21, [(75, -26), (-75, -26), (-75, 26), (75, 26)])  # lines 4-7
sketch21.addConstraint([
    Sketcher.Constraint("Vertical", 0),
    Sketcher.Constraint("Horizontal", 1),
    Sketcher.Constraint("Vertical", 2),
    Sketcher.Constraint("Horizontal", 3),
    Sketcher.Constraint("Horizontal", 4),
    Sketcher.Constraint("Vertical", 5),
    Sketcher.Constraint("Horizontal", 6),
    Sketcher.Constraint("Vertical", 7),
    Sketcher.Constraint("Symmetric", 0, 2, 2, 2, -1, 1),
    Sketcher.Constraint("Symmetric", 4, 2, 6, 2, -1, 1),
    Sketcher.Constraint("DistanceX", 1, 1, 1, 2, 162.0),
    Sketcher.Constraint("DistanceX", 4, 2, 4, 1, 150.0),
    Sketcher.Constraint("DistanceY", 5, 1, 5, 2, 52.0),
    Sketcher.Constraint("DistanceY", 0, 2, 0, 1, 58.4),
])
sketch21.setExpression("Constraints[18]", "Params.sketch21_width")
sketch21.setExpression("Constraints[19]", "Params.sketch21_width2")
sketch21.setExpression("Constraints[20]", "Params.sketch21_height")
sketch21.setExpression("Constraints[21]", "Params.sketch21_height2")
pad12 = body.newObject("PartDesign::Pad", "Pad011")
pad12.Profile = sketch21
pad12.setExpression("Length", "Params.pad12_length")

# Sketch on XY plane
sketch22 = body.newObject("Sketcher::SketchObject", "Sketch021")
sketch22.AttachmentSupport = (doc.getObject("XY_Plane"), [""])
sketch22.MapMode = "FlatFace"
sketch22.AttachmentOffset = App.Placement(App.Vector(0, 0, -26), App.Rotation())
sketch22.addGeometry([
    Part.LineSegment(App.Vector(46, 100, 0), App.Vector(46, 121.5, 0)),  # 0
    Part.LineSegment(App.Vector(46, 121.5, 0), App.Vector(62, 121.5, 0)),  # 1
    Part.ArcOfCircle(Part.Circle(App.Vector(62, 109, 0), App.Vector(0, 0, 1), 12.5), math.radians(-46), math.radians(90)),  # 2
    Part.LineSegment(App.Vector(70.7, 100, 0), App.Vector(46, 100, 0)),  # 3
    Part.Circle(App.Vector(62, 103, 0), App.Vector(0, 0, 1), 1),  # 4
    Part.Circle(App.Vector(62, 109, 0), App.Vector(0, 0, 1), 1),  # 5
    Part.Circle(App.Vector(62, 115, 0), App.Vector(0, 0, 1), 1),  # 6
], False)
sketch22.addConstraint([
    Sketcher.Constraint("Coincident", 0, 2, 1, 1),
    Sketcher.Constraint("Tangent", 1, 2, 2, 2),
    Sketcher.Constraint("Coincident", 2, 1, 3, 1),
    Sketcher.Constraint("Coincident", 3, 2, 0, 1),
    Sketcher.Constraint("Vertical", 0),
    Sketcher.Constraint("Horizontal", 1),
    Sketcher.Constraint("Horizontal", 3),
    Sketcher.Constraint("Coincident", 5, 3, 2, 3),
    Sketcher.Constraint("Equal", 4, 5),
    Sketcher.Constraint("Equal", 5, 6),
    Sketcher.Constraint("Vertical", 2, 3, 4, 3),
    Sketcher.Constraint("Vertical", 5, 3, 6, 3),
    Sketcher.Constraint("Diameter", 4, 2.0),
    Sketcher.Constraint("Radius", 2, 12.5),
    Sketcher.Constraint("DistanceX", 1, 1, 1, 2, 16.0),
    Sketcher.Constraint("DistanceY", 0, 1, 0, 2, 21.5),
    Sketcher.Constraint("DistanceX", -1, 1, 2, 3, 62.0),
    Sketcher.Constraint("DistanceY", -1, 1, 2, 3, 109.0),
    Sketcher.Constraint("DistanceY", -1, 1, 4, 3, 103.0),
    Sketcher.Constraint("DistanceY", -1, 1, 6, 3, 115.0),
])
sketch22.setExpression("Constraints[12]", "Params.sketch22_diameter")
sketch22.setExpression("Constraints[13]", "Params.sketch22_radius")
sketch22.setExpression("Constraints[14]", "Params.sketch22_width")
sketch22.setExpression("Constraints[15]", "Params.sketch22_height")
pad13 = body.newObject("PartDesign::Pad", "Pad012")
pad13.Profile = sketch22
pad13.setExpression("Length", "Params.pad13_length")
pad13.Reversed = True
doc.recompute()

fillet = body.newObject("PartDesign::Fillet", "Fillet")
fillet.Base = (pad13, edges_at(pad13, [(46, 121.5, -27.6), (46, 100, -27.6)]))
fillet.setExpression("Radius", "Params.fillet_radius")
doc.recompute()

mirrored4 = body.newObject("PartDesign::Mirrored", "Mirrored003")
mirrored4.Originals = [pad13]
mirrored4.MirrorPlane = (doc.getObject("XY_Plane"), [""])
body.Tip = mirrored4
doc.recompute()

fillet2 = body.newObject("PartDesign::Fillet", "Fillet001")
fillet2.Base = (mirrored4, edges_at(mirrored4, [(46, 121.5, 27.6), (46, 100, 27.6)]))
fillet2.setExpression("Radius", "Params.fillet2_radius")

doc.recompute()
